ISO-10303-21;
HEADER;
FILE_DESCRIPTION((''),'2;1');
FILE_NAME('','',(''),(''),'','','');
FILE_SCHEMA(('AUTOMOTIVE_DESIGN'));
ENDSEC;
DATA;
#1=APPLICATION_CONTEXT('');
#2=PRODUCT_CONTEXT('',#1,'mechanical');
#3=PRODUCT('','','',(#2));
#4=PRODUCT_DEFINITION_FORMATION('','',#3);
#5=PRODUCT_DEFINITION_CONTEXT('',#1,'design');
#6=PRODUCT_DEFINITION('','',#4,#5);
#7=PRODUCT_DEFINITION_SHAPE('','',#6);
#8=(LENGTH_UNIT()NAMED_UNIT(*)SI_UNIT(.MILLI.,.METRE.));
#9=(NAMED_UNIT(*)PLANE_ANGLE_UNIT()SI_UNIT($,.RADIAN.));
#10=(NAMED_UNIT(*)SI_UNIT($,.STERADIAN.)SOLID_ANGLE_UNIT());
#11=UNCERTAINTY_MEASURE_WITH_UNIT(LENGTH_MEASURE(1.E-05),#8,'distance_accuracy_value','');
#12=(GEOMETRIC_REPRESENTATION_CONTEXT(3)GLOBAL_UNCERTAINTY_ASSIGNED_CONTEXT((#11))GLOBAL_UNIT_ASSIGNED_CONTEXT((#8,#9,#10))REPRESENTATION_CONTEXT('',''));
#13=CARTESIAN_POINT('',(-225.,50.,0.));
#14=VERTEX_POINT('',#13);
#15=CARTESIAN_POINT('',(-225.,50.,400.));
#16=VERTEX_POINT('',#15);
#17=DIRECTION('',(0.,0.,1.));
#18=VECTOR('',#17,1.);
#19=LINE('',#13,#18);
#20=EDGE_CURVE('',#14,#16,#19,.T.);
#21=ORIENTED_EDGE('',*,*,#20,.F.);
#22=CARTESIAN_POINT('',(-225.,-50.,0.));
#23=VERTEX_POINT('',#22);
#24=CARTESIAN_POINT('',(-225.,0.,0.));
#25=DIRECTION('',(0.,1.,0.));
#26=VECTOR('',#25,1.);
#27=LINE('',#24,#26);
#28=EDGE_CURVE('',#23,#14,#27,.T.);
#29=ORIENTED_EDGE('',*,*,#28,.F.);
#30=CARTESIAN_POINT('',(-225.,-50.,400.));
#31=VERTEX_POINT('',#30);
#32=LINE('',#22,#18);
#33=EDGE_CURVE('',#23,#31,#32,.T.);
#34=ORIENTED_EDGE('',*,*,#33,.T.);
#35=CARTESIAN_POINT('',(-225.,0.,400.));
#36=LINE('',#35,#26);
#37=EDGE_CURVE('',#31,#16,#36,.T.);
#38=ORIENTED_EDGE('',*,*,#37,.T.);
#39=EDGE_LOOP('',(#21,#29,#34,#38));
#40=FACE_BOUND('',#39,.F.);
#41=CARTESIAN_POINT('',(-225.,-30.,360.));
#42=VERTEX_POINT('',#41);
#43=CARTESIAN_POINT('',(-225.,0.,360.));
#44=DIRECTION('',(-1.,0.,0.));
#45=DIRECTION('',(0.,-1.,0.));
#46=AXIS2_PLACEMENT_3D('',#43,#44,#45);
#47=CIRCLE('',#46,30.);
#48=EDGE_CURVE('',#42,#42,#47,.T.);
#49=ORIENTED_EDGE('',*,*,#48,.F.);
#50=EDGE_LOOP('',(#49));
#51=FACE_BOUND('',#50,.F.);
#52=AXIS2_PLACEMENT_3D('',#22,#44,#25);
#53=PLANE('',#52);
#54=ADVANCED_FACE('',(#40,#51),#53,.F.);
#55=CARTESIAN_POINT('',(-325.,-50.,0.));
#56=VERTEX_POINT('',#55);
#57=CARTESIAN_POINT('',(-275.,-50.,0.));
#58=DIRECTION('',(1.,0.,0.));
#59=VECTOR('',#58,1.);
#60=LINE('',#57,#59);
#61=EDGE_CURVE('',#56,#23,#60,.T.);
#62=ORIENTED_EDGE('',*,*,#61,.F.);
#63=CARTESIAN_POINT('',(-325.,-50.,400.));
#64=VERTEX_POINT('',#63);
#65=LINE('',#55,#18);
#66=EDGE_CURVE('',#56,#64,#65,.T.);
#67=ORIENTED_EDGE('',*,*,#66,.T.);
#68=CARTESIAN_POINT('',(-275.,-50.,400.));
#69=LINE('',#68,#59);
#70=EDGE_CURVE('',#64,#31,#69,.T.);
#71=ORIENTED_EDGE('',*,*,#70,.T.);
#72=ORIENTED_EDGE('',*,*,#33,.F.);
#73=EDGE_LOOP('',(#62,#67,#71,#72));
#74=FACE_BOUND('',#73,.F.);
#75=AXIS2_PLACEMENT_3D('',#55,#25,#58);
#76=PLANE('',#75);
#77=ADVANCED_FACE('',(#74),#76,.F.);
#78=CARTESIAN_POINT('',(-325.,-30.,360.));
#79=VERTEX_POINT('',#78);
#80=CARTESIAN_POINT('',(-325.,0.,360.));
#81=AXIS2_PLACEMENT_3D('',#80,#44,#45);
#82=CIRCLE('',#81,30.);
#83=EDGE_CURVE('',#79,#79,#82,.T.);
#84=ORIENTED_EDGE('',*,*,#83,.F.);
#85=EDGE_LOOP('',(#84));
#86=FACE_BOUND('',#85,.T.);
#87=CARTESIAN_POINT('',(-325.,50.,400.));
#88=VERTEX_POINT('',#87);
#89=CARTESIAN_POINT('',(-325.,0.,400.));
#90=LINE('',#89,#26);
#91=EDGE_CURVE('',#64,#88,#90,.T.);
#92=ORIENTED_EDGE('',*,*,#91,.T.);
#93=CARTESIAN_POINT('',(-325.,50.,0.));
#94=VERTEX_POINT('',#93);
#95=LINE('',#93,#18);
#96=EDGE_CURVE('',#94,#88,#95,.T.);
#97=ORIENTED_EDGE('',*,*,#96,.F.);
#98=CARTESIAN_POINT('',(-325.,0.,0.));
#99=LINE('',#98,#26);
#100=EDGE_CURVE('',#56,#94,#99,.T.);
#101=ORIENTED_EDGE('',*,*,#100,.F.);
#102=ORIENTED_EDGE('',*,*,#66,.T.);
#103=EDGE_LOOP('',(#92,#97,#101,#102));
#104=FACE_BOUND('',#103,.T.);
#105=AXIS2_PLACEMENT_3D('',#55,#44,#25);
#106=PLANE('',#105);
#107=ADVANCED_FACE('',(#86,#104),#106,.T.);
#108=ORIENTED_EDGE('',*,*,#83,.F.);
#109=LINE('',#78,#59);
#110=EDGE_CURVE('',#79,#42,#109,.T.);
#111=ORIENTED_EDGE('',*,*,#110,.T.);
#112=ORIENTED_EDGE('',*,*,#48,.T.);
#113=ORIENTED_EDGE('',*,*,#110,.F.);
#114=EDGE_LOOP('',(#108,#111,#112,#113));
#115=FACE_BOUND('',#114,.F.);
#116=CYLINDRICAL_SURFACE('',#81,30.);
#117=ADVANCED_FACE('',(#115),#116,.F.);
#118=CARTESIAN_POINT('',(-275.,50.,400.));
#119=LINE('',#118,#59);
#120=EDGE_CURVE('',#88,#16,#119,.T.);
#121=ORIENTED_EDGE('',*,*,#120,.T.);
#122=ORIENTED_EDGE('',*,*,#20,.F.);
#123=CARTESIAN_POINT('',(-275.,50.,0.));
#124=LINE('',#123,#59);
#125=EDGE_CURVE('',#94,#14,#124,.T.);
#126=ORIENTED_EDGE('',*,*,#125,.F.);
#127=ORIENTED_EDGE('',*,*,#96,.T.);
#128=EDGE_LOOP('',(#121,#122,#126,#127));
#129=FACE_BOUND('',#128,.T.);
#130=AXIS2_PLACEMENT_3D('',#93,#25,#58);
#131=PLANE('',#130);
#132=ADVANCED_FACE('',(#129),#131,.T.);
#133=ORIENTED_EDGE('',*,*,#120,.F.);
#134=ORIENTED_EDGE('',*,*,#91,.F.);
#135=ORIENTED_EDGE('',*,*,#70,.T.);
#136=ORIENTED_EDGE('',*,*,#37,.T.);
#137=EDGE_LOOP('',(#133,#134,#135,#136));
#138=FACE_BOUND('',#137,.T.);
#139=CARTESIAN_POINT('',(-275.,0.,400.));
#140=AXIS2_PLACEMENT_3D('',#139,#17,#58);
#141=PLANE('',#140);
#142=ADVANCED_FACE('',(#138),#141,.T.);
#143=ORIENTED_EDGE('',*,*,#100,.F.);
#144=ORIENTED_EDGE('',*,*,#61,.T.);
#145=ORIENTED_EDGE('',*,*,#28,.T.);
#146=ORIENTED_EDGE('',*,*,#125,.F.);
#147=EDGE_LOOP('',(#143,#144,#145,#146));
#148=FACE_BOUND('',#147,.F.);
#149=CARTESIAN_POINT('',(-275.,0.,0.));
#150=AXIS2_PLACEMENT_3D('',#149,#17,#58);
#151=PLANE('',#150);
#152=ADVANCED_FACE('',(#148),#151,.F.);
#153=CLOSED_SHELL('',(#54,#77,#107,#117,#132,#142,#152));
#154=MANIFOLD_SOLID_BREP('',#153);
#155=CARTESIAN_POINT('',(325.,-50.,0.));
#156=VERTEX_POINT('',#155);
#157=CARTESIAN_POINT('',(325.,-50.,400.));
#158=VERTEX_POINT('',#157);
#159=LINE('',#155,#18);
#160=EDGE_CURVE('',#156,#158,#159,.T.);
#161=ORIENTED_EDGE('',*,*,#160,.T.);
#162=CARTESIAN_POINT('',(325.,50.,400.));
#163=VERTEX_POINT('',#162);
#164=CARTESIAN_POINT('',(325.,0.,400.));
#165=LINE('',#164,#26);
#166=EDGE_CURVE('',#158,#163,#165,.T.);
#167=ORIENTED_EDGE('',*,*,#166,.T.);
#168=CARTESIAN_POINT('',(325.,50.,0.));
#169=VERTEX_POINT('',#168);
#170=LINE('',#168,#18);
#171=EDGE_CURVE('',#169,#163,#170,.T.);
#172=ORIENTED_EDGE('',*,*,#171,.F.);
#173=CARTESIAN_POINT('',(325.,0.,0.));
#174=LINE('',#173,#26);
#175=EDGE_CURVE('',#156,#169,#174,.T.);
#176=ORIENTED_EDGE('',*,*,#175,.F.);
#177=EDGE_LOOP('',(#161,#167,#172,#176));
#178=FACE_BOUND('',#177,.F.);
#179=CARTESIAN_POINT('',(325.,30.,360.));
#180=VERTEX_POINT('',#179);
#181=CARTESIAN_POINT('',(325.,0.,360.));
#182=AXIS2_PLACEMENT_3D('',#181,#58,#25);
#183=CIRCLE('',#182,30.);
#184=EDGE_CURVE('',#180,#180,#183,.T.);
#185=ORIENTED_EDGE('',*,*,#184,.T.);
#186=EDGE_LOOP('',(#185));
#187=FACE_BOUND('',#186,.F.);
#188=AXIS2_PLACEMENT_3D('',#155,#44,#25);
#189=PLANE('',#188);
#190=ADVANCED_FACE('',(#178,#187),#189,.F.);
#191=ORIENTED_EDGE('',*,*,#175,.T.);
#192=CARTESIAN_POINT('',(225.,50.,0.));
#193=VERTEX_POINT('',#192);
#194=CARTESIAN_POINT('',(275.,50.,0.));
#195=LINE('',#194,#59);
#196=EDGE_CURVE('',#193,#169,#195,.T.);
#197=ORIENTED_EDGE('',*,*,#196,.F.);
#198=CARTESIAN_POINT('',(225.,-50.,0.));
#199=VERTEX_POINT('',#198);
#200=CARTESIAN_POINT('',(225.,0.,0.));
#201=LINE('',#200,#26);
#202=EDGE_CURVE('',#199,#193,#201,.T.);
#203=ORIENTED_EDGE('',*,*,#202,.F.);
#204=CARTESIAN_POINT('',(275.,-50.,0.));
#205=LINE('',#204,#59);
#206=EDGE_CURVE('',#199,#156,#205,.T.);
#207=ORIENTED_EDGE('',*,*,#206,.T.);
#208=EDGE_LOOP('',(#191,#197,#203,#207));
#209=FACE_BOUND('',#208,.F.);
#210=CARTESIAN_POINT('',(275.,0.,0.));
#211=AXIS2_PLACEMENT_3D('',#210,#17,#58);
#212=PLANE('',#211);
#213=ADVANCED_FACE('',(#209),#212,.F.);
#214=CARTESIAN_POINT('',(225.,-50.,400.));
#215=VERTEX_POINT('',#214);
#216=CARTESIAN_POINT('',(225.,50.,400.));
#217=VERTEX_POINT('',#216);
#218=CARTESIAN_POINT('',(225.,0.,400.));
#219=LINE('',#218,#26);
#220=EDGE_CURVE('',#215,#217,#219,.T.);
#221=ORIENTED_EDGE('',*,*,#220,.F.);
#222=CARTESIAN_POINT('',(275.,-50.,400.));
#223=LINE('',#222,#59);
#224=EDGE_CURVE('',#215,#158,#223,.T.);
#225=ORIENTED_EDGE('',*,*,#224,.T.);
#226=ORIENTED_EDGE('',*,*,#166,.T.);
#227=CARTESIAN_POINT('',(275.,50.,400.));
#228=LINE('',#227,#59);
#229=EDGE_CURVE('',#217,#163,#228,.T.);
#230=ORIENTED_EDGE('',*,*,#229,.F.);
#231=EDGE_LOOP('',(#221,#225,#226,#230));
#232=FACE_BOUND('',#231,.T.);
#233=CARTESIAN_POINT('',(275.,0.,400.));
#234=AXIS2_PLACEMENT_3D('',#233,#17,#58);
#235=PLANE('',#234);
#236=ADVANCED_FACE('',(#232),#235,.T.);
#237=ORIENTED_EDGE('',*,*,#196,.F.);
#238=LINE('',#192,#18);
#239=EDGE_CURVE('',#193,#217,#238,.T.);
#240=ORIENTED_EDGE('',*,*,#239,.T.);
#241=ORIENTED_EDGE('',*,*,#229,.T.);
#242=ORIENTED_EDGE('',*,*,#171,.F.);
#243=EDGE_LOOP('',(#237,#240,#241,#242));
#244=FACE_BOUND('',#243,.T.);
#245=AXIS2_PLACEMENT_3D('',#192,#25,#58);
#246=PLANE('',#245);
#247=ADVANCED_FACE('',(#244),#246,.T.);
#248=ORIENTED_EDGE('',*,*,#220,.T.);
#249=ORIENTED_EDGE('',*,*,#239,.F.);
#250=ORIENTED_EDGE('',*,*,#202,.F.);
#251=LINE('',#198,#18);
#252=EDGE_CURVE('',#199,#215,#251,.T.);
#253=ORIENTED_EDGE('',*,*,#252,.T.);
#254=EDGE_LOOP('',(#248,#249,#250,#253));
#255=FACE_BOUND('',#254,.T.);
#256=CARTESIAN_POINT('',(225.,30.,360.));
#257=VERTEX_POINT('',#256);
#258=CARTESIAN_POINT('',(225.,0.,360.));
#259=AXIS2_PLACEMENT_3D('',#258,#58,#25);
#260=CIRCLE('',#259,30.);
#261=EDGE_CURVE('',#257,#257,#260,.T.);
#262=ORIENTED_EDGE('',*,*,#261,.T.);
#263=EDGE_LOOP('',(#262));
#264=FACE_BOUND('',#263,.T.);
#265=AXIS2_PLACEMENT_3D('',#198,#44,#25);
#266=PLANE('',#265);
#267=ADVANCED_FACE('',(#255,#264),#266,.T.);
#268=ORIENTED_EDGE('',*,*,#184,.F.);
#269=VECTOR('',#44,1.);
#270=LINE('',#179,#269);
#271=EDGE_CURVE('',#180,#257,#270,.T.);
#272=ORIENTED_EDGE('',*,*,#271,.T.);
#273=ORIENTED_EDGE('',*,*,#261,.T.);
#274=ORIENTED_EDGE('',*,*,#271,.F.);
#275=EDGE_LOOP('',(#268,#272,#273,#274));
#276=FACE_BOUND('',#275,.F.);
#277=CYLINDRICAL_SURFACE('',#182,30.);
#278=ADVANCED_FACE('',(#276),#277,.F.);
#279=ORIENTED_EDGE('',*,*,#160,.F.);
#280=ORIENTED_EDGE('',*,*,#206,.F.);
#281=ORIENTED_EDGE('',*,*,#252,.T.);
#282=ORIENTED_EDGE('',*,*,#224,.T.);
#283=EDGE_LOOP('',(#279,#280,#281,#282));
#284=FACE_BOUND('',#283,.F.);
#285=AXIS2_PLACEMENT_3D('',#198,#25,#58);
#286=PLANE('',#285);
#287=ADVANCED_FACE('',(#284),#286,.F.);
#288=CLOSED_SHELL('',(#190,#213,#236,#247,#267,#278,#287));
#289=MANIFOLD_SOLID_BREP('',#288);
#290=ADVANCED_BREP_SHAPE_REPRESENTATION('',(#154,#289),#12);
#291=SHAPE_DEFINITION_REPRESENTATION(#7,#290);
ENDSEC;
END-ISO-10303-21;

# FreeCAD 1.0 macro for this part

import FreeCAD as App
import Part
import Sketcher

V = App.Vector


def add_polygon(sketch, points):
    """Adds a closed chain of lines whose ends are joined by coincident constraints."""
    first, n = sketch.GeometryCount, len(points)
    for a, b in zip(points, points[1:] + points[:1]):
        sketch.addGeometry(Part.LineSegment(App.Vector(*a, 0), App.Vector(*b, 0)), False)
    for i in range(n):
        sketch.addConstraint(Sketcher.Constraint("Coincident", first + i, 2, first + (i + 1) % n, 1))

doc = App.newDocument("Part")
body = doc.addObject("PartDesign::Body", "Body")
body.AllowCompound = True

# Sketch on XY plane
sketch1 = body.newObject("Sketcher::SketchObject", "Sketch")
sketch1.AttachmentSupport = (doc.getObject("XY_Plane"), [""])
sketch1.MapMode = "FlatFace"
add_polygon(sketch1, [(-325, 50), (-325, -50), (-225, -50), (-225, 50)])  # lines 0-3
add_polygon(sketch1, [(225, 50), (225, -50), (325, -50), (325, 50)])  # lines 4-7
sketch1.addConstraint(Sketcher.Constraint("Vertical", 0))
sketch1.addConstraint(Sketcher.Constraint("Horizontal", 1))
sketch1.addConstraint(Sketcher.Constraint("Vertical", 2))
sketch1.addConstraint(Sketcher.Constraint("Horizontal", 3))
sketch1.addConstraint(Sketcher.Constraint("Vertical", 4))
sketch1.addConstraint(Sketcher.Constraint("Horizontal", 5))
sketch1.addConstraint(Sketcher.Constraint("Vertical", 6))
sketch1.addConstraint(Sketcher.Constraint("Horizontal", 7))
sketch1.addConstraint(Sketcher.Constraint("Symmetric", 2, 2, 4, 2, -1, 1))
sketch1.addConstraint(Sketcher.Constraint("Symmetric", 0, 2, 6, 2, -1, 1))
sketch1.addConstraint(Sketcher.Constraint("Horizontal", 1, 2, 4, 2))
sketch1.addConstraint(Sketcher.Constraint("Equal", 7, 0))
sketch1.addConstraint(Sketcher.Constraint("DistanceX", 1, 1, 1, 2, 100.0))
sketch1.addConstraint(Sketcher.Constraint("DistanceX", 0, 2, -1, 1, 325.0))
pad1 = body.newObject("PartDesign::Pad", "Pad")
pad1.Profile = sketch1
pad1.Length = 400

# Sketch on YZ plane
sketch2 = body.newObject("Sketcher::SketchObject", "Sketch001")
sketch2.AttachmentSupport = (doc.getObject("YZ_Plane"), [""])
sketch2.MapMode = "FlatFace"
sketch2.AttachmentOffset = App.Placement(V(0, 0, 325), App.Rotation())
sketch2.addGeometry(Part.Circle(V(0, 360, 0), V(0, 0, 1), 30), False)
sketch2.addConstraint(Sketcher.Constraint("PointOnObject", 0, 3, -2))
sketch2.addConstraint(Sketcher.Constraint("Diameter", 0, 60.0))
sketch2.addConstraint(Sketcher.Constraint("DistanceY", -1, 1, 0, 3, 360.0))
pocket1 = body.newObject("PartDesign::Pocket", "Pocket")
pocket1.Profile = sketch2
pocket1.Length = 100

# Sketch on YZ plane
sketch3 = body.newObject("Sketcher::SketchObject", "Sketch002")
sketch3.AttachmentSupport = (doc.getObject("YZ_Plane"), [""])
sketch3.MapMode = "FlatFace"
sketch3.AttachmentOffset = App.Placement(V(0, 0, -325), App.Rotation())
sketch3.addGeometry(Part.Circle(V(0, 360, 0), V(0, 0, 1), 30), False)
sketch3.addConstraint(Sketcher.Constraint("PointOnObject", 0, 3, -2))
sketch3.addConstraint(Sketcher.Constraint("Diameter", 0, 60.0))
sketch3.addConstraint(Sketcher.Constraint("DistanceY", -1, 1, 0, 3, 360.0))
pocket2 = body.newObject("PartDesign::Pocket", "Pocket001")
pocket2.Profile = sketch3
pocket2.Length = 100
pocket2.Reversed = True

doc.recompute()
